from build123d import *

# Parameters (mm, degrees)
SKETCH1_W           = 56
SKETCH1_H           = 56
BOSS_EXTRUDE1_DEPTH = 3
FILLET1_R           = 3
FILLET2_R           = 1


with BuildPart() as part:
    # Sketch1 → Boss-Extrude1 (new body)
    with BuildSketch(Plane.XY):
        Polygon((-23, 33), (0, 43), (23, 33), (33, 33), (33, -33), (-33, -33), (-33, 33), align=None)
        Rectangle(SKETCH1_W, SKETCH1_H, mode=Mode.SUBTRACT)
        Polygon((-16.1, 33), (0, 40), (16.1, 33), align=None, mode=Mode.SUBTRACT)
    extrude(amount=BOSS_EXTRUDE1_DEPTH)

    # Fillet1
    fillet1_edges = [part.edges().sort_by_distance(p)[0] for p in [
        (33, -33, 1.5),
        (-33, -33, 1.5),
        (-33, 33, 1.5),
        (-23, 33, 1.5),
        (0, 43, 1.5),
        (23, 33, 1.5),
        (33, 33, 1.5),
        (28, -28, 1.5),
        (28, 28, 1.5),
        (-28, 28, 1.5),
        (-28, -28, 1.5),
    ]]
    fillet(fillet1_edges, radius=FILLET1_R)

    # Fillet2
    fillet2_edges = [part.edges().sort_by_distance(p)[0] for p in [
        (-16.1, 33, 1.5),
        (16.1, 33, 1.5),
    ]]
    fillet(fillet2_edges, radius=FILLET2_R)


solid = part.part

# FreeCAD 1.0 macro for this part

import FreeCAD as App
import Part
import Sketcher
from FreeCAD import Vector
Q = App.Units.Quantity


def edges_at(feature, points):
    """Names of the edges that pass closest to the given points."""
    edges = feature.Shape.Edges
    near = lambda p: min(range(len(edges)), key=lambda i: edges[i].distToShape(Part.Vertex(*p))[0])
    return sorted({f"Edge{near(p) + 1}" for p in points})

doc = App.newDocument("Part")
body = doc.addObject("PartDesign::Body", "Body")

# Sketch on XY plane
sketch1 = body.newObject("Sketcher::SketchObject", "Sketch")
sketch1.AttachmentSupport = (doc.getObject("XY_Plane"), [""])
sketch1.MapMode = "FlatFace"
sketch1.addGeometry(Part.LineSegment(Vector(0, 43, 0), Vector(-23, 33, 0)), False)
sketch1.addGeometry(Part.LineSegment(Vector(-23, 33, 0), Vector(-33, 33, 0)), False)
sketch1.addGeometry(Part.LineSegment(Vector(-33, 33, 0), Vector(-33, -33, 0)), False)
sketch1.addGeometry(Part.LineSegment(Vector(-33, -33, 0), Vector(33, -33, 0)), False)
sketch1.addGeometry(Part.LineSegment(Vector(33, -33, 0), Vector(33, 33, 0)), False)
sketch1.addGeometry(Part.LineSegment(Vector(33, 33, 0), Vector(23, 33, 0)), False)
sketch1.addGeometry(Part.LineSegment(Vector(23, 33, 0), Vector(0, 43, 0)), False)
sketch1.addGeometry(Part.LineSegment(Vector(-28, -28, 0), Vector(-28, 28, 0)), False)
sketch1.addGeometry(Part.LineSegment(Vector(-28, 28, 0), Vector(28, 28, 0)), False)
sketch1.addGeometry(Part.LineSegment(Vector(28, 28, 0), Vector(28, -28, 0)), False)
sketch1.addGeometry(Part.LineSegment(Vector(28, -28, 0), Vector(-28, -28, 0)), False)
sketch1.addGeometry(Part.LineSegment(Vector(-16.1, 33, 0), Vector(0, 40, 0)), False)
sketch1.addGeometry(Part.LineSegment(Vector(0, 40, 0), Vector(16.1, 33, 0)), False)
sketch1.addGeometry(Part.LineSegment(Vector(16.1, 33, 0), Vector(-16.1, 33, 0)), False)
sketch1.addConstraint(Sketcher.Constraint("Coincident", 0, 2, 1, 1))
sketch1.addConstraint(Sketcher.Constraint("Coincident", 1, 2, 2, 1))
sketch1.addConstraint(Sketcher.Constraint("Coincident", 2, 2, 3, 1))
sketch1.addConstraint(Sketcher.Constraint("Coincident", 3, 2, 4, 1))
sketch1.addConstraint(Sketcher.Constraint("Coincident", 4, 2, 5, 1))
sketch1.addConstraint(Sketcher.Constraint("Coincident", 5, 2, 6, 1))
sketch1.addConstraint(Sketcher.Constraint("Coincident", 6, 2, 0, 1))
sketch1.addConstraint(Sketcher.Constraint("Coincident", 7, 2, 8, 1))
sketch1.addConstraint(Sketcher.Constraint("Coincident", 8, 2, 9, 1))
sketch1.addConstraint(Sketcher.Constraint("Coincident", 9, 2, 10, 1))
sketch1.addConstraint(Sketcher.Constraint("Coincident", 10, 2, 7, 1))
sketch1.addConstraint(Sketcher.Constraint("Coincident", 11, 2, 12, 1))
sketch1.addConstraint(Sketcher.Constraint("Coincident", 12, 2, 13, 1))
sketch1.addConstraint(Sketcher.Constraint("Coincident", 13, 2, 11, 1))
sketch1.addConstraint(Sketcher.Constraint("Horizontal", 1))
sketch1.addConstraint(Sketcher.Constraint("Vertical", 2))
sketch1.addConstraint(Sketcher.Constraint("Horizontal", 3))
sketch1.addConstraint(Sketcher.Constraint("Vertical", 4))
sketch1.addConstraint(Sketcher.Constraint("Horizontal", 5))
sketch1.addConstraint(Sketcher.Constraint("Vertical", 7))
sketch1.addConstraint(Sketcher.Constraint("Horizontal", 8))
sketch1.addConstraint(Sketcher.Constraint("Vertical", 9))
sketch1.addConstraint(Sketcher.Constraint("Horizontal", 10))
sketch1.addConstraint(Sketcher.Constraint("Horizontal", 13))
sketch1.addConstraint(Sketcher.Constraint("Symmetric", 1, 2, 3, 2, -1, 1))
sketch1.addConstraint(Sketcher.Constraint("Symmetric", 7, 2, 9, 2, -1, 1))
sketch1.addConstraint(Sketcher.Constraint("Symmetric", 0, 2, 5, 2, -2))
sketch1.addConstraint(Sketcher.Constraint("PointOnObject", 6, 2, -2))
sketch1.addConstraint(Sketcher.Constraint("PointOnObject", 11, 2, -2))
sketch1.addConstraint(Sketcher.Constraint("Parallel", 0, 11))
sketch1.addConstraint(Sketcher.Constraint("Parallel", 6, 12))
sketch1.addConstraint(Sketcher.Constraint("Horizontal", 5, 2, 12, 2))
sketch1.addConstraint(Sketcher.Constraint("Equal", 3, 2))
sketch1.addConstraint(Sketcher.Constraint("Equal", 10, 7))
sketch1.addConstraint(Sketcher.Constraint("DistanceX", 1, 2, 1, 1, Q("10 mm")))
sketch1.addConstraint(Sketcher.Constraint("DistanceX", 3, 1, 3, 2, Q("66 mm")))
sketch1.addConstraint(Sketcher.Constraint("DistanceX", 8, 1, 8, 2, Q("56 mm")))
sketch1.addConstraint(Sketcher.Constraint("DistanceX", 13, 2, 13, 1, Q("32.2 mm")))
sketch1.addConstraint(Sketcher.Constraint("DistanceY", -1, 1, 6, 2, Q("43 mm")))
pad1 = body.newObject("PartDesign::Pad", "Pad")
pad1.Profile = sketch1
pad1.Length = 3
doc.recompute()

fillet = body.newObject("PartDesign::Fillet", "Fillet")
fillet.Base = (pad1, edges_at(pad1, [
    (33, -33, 1.5),
    (-33, -33, 1.5),
    (-33, 33, 1.5),
    (-23, 33, 1.5),
    (0, 43, 1.5),
    (23, 33, 1.5),
    (33, 33, 1.5),
    (28, -28, 1.5),
    (28, 28, 1.5),
    (-28, 28, 1.5),
    (-28, -28, 1.5),
]))
fillet.Radius = 3
doc.recompute()

fillet2 = body.newObject("PartDesign::Fillet", "Fillet001")
fillet2.Base = (fillet, edges_at(fillet, [(-16.1, 33, 1.5), (16.1, 33, 1.5)]))
fillet2.Radius = 1

doc.recompute()
